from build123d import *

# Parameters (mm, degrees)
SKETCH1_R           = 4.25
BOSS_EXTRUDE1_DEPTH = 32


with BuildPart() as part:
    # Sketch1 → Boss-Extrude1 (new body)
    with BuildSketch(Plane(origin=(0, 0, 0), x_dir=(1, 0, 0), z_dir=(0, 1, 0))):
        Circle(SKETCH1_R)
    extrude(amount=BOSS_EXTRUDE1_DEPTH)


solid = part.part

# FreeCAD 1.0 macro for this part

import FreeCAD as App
import Part
import Sketcher
from FreeCAD import Vector

doc = App.newDocument("Part")
body = doc.addObject("PartDesign::Body", "Body")

# Sketch on XZ plane
sketch1 = body.newObject("Sketcher::SketchObject", "Sketch")
sketch1.AttachmentSupport = (doc.getObject("XZ_Plane"), [""])
sketch1.MapMode = "FlatFace"
sketch1.addGeometry(Part.Circle(Vector(0, 0, 0), Vector(0, 0, 1), 4.2), False)
sketch1.addConstraint([
    Sketcher.Constraint("Coincident", 0, 3, -1, 1),
    Sketcher.Constraint("Diameter", 0, 8.5),
])
pad1 = body.newObject("PartDesign::Pad", "Pad")
pad1.Profile = sketch1
pad1.Length = 32
pad1.Reversed = True

doc.recompute()
